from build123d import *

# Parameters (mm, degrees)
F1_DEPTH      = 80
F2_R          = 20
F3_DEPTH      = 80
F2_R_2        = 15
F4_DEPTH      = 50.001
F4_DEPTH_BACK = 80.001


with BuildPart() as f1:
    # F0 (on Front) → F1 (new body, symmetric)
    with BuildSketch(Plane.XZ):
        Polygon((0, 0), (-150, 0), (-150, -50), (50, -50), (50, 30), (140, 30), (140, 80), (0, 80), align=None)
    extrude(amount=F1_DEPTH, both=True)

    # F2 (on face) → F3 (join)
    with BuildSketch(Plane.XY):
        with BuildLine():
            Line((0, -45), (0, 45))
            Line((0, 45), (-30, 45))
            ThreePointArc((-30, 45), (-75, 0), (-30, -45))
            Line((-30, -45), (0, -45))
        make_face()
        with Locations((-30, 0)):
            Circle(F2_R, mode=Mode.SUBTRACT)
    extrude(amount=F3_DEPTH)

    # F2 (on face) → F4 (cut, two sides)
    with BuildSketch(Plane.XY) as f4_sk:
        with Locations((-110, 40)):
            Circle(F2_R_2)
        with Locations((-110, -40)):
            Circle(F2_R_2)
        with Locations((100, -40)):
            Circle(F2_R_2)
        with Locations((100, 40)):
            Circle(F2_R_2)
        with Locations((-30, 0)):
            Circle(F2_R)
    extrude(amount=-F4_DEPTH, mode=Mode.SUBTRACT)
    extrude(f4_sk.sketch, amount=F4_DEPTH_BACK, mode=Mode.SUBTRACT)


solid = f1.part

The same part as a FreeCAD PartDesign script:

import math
import FreeCAD as App
import Part
import Sketcher

V = App.Vector


def add_polygon(sketch, points):
    """Adds a closed chain of lines whose ends are joined by coincident constraints."""
    first, n = sketch.GeometryCount, len(points)
    for a, b in zip(points, points[1:] + points[:1]):
        sketch.addGeometry(Part.LineSegment(App.Vector(*a, 0), App.Vector(*b, 0)), False)
    for i in range(n):
        sketch.addConstraint(Sketcher.Constraint("Coincident", first + i, 2, first + (i + 1) % n, 1))

doc = App.newDocument("Part")
body = doc.addObject("PartDesign::Body", "Body")

sketch1 = body.newObject("Sketcher::SketchObject", "Sketch")
sketch1.AttachmentSupport = (doc.getObject("XZ_Plane"), [""])
sketch1.MapMode = "FlatFace"
add_polygon(sketch1, [(0, 0), (-150, 0), (-150, -50), (50, -50), (50, 30), (140, 30), (140, 80), (0, 80)])
sketch1.addConstraint(Sketcher.Constraint("Horizontal", 0))
sketch1.addConstraint(Sketcher.Constraint("Vertical", 1))
sketch1.addConstraint(Sketcher.Constraint("Horizontal", 2))
sketch1.addConstraint(Sketcher.Constraint("Vertical", 3))
sketch1.addConstraint(Sketcher.Constraint("Horizontal", 4))
sketch1.addConstraint(Sketcher.Constraint("Vertical", 5))
sketch1.addConstraint(Sketcher.Constraint("Horizontal", 6))
sketch1.addConstraint(Sketcher.Constraint("Vertical", 7))
sketch1.addConstraint(Sketcher.Constraint("Coincident", 7, 2, -1, 1))
sketch1.addConstraint(Sketcher.Constraint("Equal", 1, 5))
sketch1.addConstraint(Sketcher.Constraint("DistanceX", 0, 2, 0, 1, 150.0))
sketch1.addConstraint(Sketcher.Constraint("DistanceX", 2, 1, 2, 2, 200.0))
sketch1.addConstraint(Sketcher.Constraint("DistanceX", 4, 1, 4, 2, 90.0))
sketch1.addConstraint(Sketcher.Constraint("DistanceY", 1, 2, 1, 1, 50.0))
sketch1.addConstraint(Sketcher.Constraint("DistanceY", 3, 1, 3, 2, 80.0))
pad1 = body.newObject("PartDesign::Pad", "Pad")
pad1.Profile = sketch1
pad1.Length = 160
pad1.Midplane = True

sketch2 = body.newObject("Sketcher::SketchObject", "Sketch001")
sketch2.AttachmentSupport = (doc.getObject("XY_Plane"), [""])
sketch2.MapMode = "FlatFace"
sketch2.addGeometry(Part.LineSegment(V(0, -45, 0), V(0, 45, 0)), False)
sketch2.addGeometry(Part.LineSegment(V(0, 45, 0), V(-30, 45, 0)), False)
sketch2.addGeometry(Part.ArcOfCircle(Part.Circle(V(-30, 0, 0), V(0, 0, 1), 45), math.radians(90), math.radians(270)), False)
sketch2.addGeometry(Part.LineSegment(V(-30, -45, 0), V(0, -45, 0)), False)
sketch2.addGeometry(Part.Circle(V(-30, 0, 0), V(0, 0, 1), 20), False)
sketch2.addConstraint(Sketcher.Constraint("Coincident", 0, 2, 1, 1))
sketch2.addConstraint(Sketcher.Constraint("Tangent", 1, 2, 2, 1))
sketch2.addConstraint(Sketcher.Constraint("Tangent", 2, 2, 3, 1))
sketch2.addConstraint(Sketcher.Constraint("Coincident", 3, 2, 0, 1))
sketch2.addConstraint(Sketcher.Constraint("Vertical", 0))
sketch2.addConstraint(Sketcher.Constraint("Horizontal", 1))
sketch2.addConstraint(Sketcher.Constraint("Horizontal", 3))
sketch2.addConstraint(Sketcher.Constraint("Coincident", 4, 3, 2, 3))
sketch2.addConstraint(Sketcher.Constraint("Symmetric", 0, 2, 3, 2, -1, 1))
sketch2.addConstraint(Sketcher.Constraint("Diameter", 4, 40.0))
sketch2.addConstraint(Sketcher.Constraint("Radius", 2, 45.0))
sketch2.addConstraint(Sketcher.Constraint("DistanceX", 1, 2, 1, 1, 30.0))
pad2 = body.newObject("PartDesign::Pad", "Pad001")
pad2.Profile = sketch2
pad2.Length = 80

sketch3 = body.newObject("Sketcher::SketchObject", "Sketch002")
sketch3.AttachmentSupport = (doc.getObject("XY_Plane"), [""])
sketch3.MapMode = "FlatFace"
sketch3.addGeometry(Part.Circle(V(-110, 40, 0), V(0, 0, 1), 15), False)
sketch3.addGeometry(Part.Circle(V(-110, -40, 0), V(0, 0, 1), 15), False)
sketch3.addGeometry(Part.Circle(V(100, -40, 0), V(0, 0, 1), 15), False)
sketch3.addGeometry(Part.Circle(V(100, 40, 0), V(0, 0, 1), 15), False)
sketch3.addGeometry(Part.Circle(V(-30, 0, 0), V(0, 0, 1), 20), False)
sketch3.addConstraint(Sketcher.Constraint("Equal", 0, 1))
sketch3.addConstraint(Sketcher.Constraint("Equal", 1, 2))
sketch3.addConstraint(Sketcher.Constraint("Equal", 2, 3))
sketch3.addConstraint(Sketcher.Constraint("Symmetric", 0, 3, 1, 3, -1))
sketch3.addConstraint(Sketcher.Constraint("Symmetric", 2, 3, 3, 3, -1))
sketch3.addConstraint(Sketcher.Constraint("PointOnObject", 4, 3, -1))
sketch3.addConstraint(Sketcher.Constraint("Horizontal", 1, 3, 2, 3))
sketch3.addConstraint(Sketcher.Constraint("Diameter", 0, 30.0))
sketch3.addConstraint(Sketcher.Constraint("Diameter", 4, 40.0))
sketch3.addConstraint(Sketcher.Constraint("DistanceX", 0, 3, -1, 1, 110.0))
sketch3.addConstraint(Sketcher.Constraint("DistanceY", -1, 1, 0, 3, 40.0))
sketch3.addConstraint(Sketcher.Constraint("DistanceX", -1, 1, 2, 3, 100.0))
sketch3.addConstraint(Sketcher.Constraint("DistanceX", 4, 3, -1, 1, 30.0))
pocket1 = body.newObject("PartDesign::Pocket", "Pocket")
pocket1.Profile = sketch3
pocket1.Type = "ThroughAll"
pocket1.Midplane = True

doc.recompute()
